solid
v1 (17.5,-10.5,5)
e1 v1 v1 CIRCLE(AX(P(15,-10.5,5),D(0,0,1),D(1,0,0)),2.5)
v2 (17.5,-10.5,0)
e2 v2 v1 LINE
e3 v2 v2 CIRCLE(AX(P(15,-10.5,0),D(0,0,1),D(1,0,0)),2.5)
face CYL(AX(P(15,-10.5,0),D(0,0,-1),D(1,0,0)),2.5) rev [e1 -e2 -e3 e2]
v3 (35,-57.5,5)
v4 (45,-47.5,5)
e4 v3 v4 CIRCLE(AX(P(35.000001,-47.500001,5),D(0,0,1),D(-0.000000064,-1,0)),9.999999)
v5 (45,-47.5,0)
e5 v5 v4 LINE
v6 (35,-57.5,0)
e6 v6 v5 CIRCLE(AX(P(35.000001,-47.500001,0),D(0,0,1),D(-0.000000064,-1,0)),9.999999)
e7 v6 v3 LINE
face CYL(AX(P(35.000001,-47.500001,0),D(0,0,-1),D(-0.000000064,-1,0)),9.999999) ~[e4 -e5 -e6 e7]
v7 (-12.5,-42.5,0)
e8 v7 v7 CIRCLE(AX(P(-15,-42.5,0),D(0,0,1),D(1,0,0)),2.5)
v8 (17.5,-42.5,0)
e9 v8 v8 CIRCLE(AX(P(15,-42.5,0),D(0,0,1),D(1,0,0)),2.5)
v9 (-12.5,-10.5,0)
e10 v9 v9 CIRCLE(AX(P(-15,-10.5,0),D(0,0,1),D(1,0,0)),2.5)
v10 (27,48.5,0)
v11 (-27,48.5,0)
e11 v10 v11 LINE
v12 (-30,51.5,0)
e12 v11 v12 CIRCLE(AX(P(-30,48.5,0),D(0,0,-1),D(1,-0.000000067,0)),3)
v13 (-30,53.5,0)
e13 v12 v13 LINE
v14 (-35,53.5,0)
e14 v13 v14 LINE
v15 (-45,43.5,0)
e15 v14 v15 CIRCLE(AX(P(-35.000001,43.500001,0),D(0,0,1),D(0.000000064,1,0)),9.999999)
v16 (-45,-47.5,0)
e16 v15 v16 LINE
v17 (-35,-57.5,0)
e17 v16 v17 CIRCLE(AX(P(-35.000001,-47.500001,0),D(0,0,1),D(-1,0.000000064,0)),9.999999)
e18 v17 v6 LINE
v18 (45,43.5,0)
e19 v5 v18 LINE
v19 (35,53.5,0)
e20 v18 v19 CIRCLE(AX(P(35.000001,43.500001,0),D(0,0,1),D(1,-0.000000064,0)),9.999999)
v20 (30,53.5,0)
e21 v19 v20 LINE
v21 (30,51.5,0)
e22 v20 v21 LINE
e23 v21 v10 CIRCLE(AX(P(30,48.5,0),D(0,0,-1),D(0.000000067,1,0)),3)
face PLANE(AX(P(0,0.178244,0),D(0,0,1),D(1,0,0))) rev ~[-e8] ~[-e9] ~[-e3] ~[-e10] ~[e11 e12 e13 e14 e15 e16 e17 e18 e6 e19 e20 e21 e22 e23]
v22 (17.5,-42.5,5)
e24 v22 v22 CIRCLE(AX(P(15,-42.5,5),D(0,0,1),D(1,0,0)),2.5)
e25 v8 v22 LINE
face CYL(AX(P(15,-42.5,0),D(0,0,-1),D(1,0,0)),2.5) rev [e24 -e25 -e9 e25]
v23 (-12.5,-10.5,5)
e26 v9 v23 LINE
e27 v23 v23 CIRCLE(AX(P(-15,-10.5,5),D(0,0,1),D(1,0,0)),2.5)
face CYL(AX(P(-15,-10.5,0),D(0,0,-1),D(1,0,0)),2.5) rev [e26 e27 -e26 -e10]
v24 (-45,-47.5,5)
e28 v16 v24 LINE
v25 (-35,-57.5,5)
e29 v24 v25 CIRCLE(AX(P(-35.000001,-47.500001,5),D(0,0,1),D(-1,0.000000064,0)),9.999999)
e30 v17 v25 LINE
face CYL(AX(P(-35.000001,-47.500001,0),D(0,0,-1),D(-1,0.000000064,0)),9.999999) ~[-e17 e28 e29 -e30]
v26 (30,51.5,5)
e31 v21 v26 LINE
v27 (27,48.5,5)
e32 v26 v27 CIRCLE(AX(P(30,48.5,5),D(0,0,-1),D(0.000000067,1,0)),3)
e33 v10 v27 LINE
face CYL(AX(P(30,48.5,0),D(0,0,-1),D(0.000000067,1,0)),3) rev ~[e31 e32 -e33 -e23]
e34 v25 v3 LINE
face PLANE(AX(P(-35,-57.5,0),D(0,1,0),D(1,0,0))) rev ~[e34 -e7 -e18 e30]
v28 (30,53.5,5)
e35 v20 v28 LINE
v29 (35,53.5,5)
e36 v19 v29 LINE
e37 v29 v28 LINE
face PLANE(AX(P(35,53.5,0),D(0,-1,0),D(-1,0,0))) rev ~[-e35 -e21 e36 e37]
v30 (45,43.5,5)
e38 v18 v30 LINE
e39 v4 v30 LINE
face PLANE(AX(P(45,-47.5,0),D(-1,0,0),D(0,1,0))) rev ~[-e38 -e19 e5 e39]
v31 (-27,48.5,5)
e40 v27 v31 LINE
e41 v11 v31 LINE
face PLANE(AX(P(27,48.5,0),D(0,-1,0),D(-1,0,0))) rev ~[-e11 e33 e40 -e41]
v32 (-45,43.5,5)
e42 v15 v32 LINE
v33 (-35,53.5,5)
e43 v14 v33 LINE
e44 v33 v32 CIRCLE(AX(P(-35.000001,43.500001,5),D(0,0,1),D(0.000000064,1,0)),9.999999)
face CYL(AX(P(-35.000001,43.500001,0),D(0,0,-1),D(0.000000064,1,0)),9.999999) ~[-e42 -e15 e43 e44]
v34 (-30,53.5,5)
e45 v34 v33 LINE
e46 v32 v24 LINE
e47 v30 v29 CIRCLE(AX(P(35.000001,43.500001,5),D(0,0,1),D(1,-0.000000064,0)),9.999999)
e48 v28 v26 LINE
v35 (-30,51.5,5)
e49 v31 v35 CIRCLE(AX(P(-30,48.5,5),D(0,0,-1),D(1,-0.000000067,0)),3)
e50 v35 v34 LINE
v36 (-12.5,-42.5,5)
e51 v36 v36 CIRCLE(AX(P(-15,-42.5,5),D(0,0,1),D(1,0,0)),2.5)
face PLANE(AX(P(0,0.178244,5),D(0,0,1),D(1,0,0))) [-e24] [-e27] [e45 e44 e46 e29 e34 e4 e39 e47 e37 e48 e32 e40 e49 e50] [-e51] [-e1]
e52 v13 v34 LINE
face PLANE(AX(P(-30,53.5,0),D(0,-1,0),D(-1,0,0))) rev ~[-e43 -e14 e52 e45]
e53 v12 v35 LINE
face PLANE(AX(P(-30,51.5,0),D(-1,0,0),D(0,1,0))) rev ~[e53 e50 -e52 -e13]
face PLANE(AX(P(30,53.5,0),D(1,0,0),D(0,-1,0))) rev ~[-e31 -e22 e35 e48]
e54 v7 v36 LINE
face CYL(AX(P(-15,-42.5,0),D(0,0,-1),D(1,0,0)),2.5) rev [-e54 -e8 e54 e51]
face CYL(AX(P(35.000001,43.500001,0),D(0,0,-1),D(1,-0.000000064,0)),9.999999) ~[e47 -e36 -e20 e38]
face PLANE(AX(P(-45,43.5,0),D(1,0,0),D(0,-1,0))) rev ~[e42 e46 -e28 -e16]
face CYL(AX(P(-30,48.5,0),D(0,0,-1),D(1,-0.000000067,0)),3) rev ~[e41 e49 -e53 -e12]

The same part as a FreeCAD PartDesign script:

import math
import FreeCAD as App
import Part
import Sketcher
from FreeCAD import Vector

doc = App.newDocument("Part")
body = doc.addObject("PartDesign::Body", "Body")

# Sketch on XY plane
sketch1 = body.newObject("Sketcher::SketchObject", "Sketch")
sketch1.AttachmentSupport = (doc.getObject("XY_Plane"), [""])
sketch1.MapMode = "FlatFace"
sketch1.addGeometry(Part.LineSegment(Vector(-35, -57.5, 0), Vector(35, -57.5, 0)), False)
sketch1.addGeometry(Part.ArcOfCircle(Part.Circle(Vector(35, -47.5, 0), Vector(0, 0, 1), 10), math.radians(-90), math.radians(0)), False)
sketch1.addGeometry(Part.LineSegment(Vector(45, -47.5, 0), Vector(45, 43.5, 0)), False)
sketch1.addGeometry(Part.ArcOfCircle(Part.Circle(Vector(35, 43.5, 0), Vector(0, 0, 1), 10), math.radians(0), math.radians(90)), False)
sketch1.addGeometry(Part.LineSegment(Vector(35, 53.5, 0), Vector(30, 53.5, 0)), False)
sketch1.addGeometry(Part.LineSegment(Vector(30, 53.5, 0), Vector(30, 51.5, 0)), False)
sketch1.addGeometry(Part.ArcOfCircle(Part.Circle(Vector(30, 48.5, 0), Vector(0, 0, 1), 3), math.radians(-180), math.radians(90)), False)
sketch1.addGeometry(Part.LineSegment(Vector(27, 48.5, 0), Vector(-27, 48.5, 0)), False)
sketch1.addGeometry(Part.ArcOfCircle(Part.Circle(Vector(-30, 48.5, 0), Vector(0, 0, 1), 3), math.radians(90), math.radians(360)), False)
sketch1.addGeometry(Part.LineSegment(Vector(-30, 51.5, 0), Vector(-30, 53.5, 0)), False)
sketch1.addGeometry(Part.LineSegment(Vector(-30, 53.5, 0), Vector(-35, 53.5, 0)), False)
sketch1.addGeometry(Part.ArcOfCircle(Part.Circle(Vector(-35, 43.5, 0), Vector(0, 0, 1), 10), math.radians(90), math.radians(180)), False)
sketch1.addGeometry(Part.LineSegment(Vector(-45, 43.5, 0), Vector(-45, -47.5, 0)), False)
sketch1.addGeometry(Part.ArcOfCircle(Part.Circle(Vector(-35, -47.5, 0), Vector(0, 0, 1), 10), math.radians(180), math.radians(270)), False)
sketch1.addGeometry(Part.Circle(Vector(-15, -42.5, 0), Vector(0, 0, 1), 2.5), False)
sketch1.addGeometry(Part.Circle(Vector(15, -42.5, 0), Vector(0, 0, 1), 2.5), False)
sketch1.addGeometry(Part.Circle(Vector(-15, -10.5, 0), Vector(0, 0, 1), 2.5), False)
sketch1.addGeometry(Part.Circle(Vector(15, -10.5, 0), Vector(0, 0, 1), 2.5), False)
sketch1.addConstraint(Sketcher.Constraint("Tangent", 0, 2, 1, 1))
sketch1.addConstraint(Sketcher.Constraint("Tangent", 1, 2, 2, 1))
sketch1.addConstraint(Sketcher.Constraint("Tangent", 2, 2, 3, 1))
sketch1.addConstraint(Sketcher.Constraint("Tangent", 3, 2, 4, 1))
sketch1.addConstraint(Sketcher.Constraint("Coincident", 4, 2, 5, 1))
sketch1.addConstraint(Sketcher.Constraint("Coincident", 5, 2, 6, 2))
sketch1.addConstraint(Sketcher.Constraint("Coincident", 6, 1, 7, 1))
sketch1.addConstraint(Sketcher.Constraint("Coincident", 7, 2, 8, 2))
sketch1.addConstraint(Sketcher.Constraint("Coincident", 8, 1, 9, 1))
sketch1.addConstraint(Sketcher.Constraint("Coincident", 9, 2, 10, 1))
sketch1.addConstraint(Sketcher.Constraint("Tangent", 10, 2, 11, 1))
sketch1.addConstraint(Sketcher.Constraint("Tangent", 11, 2, 12, 1))
sketch1.addConstraint(Sketcher.Constraint("Tangent", 12, 2, 13, 1))
sketch1.addConstraint(Sketcher.Constraint("Tangent", 13, 2, 0, 1))
sketch1.addConstraint(Sketcher.Constraint("Horizontal", 0))
sketch1.addConstraint(Sketcher.Constraint("Vertical", 2))
sketch1.addConstraint(Sketcher.Constraint("Horizontal", 4))
sketch1.addConstraint(Sketcher.Constraint("Vertical", 5))
sketch1.addConstraint(Sketcher.Constraint("Horizontal", 7))
sketch1.addConstraint(Sketcher.Constraint("Vertical", 9))
sketch1.addConstraint(Sketcher.Constraint("Horizontal", 10))
sketch1.addConstraint(Sketcher.Constraint("Vertical", 12))
sketch1.addConstraint(Sketcher.Constraint("Equal", 1, 3))
sketch1.addConstraint(Sketcher.Constraint("Equal", 6, 8))
sketch1.addConstraint(Sketcher.Constraint("Equal", 3, 11))
sketch1.addConstraint(Sketcher.Constraint("Equal", 11, 13))
sketch1.addConstraint(Sketcher.Constraint("Equal", 14, 15))
sketch1.addConstraint(Sketcher.Constraint("Equal", 15, 16))
sketch1.addConstraint(Sketcher.Constraint("Equal", 16, 17))
sketch1.addConstraint(Sketcher.Constraint("Symmetric", 6, 3, 8, 3, -2))
sketch1.addConstraint(Sketcher.Constraint("Symmetric", 3, 3, 11, 3, -2))
sketch1.addConstraint(Sketcher.Constraint("Symmetric", 14, 3, 15, 3, -2))
sketch1.addConstraint(Sketcher.Constraint("Symmetric", 16, 3, 17, 3, -2))
sketch1.addConstraint(Sketcher.Constraint("Horizontal", 8, 3, 6, 1))
sketch1.addConstraint(Sketcher.Constraint("Vertical", 14, 3, 16, 3))
sketch1.addConstraint(Sketcher.Constraint("Vertical", 6, 3, 4, 2))
sketch1.addConstraint(Sketcher.Constraint("Equal", 4, 10))
sketch1.addConstraint(Sketcher.Constraint("Diameter", 14, 5.0))
sketch1.addConstraint(Sketcher.Constraint("Radius", 1, 9.999999))
sketch1.addConstraint(Sketcher.Constraint("Radius", 6, 3.0))
sketch1.addConstraint(Sketcher.Constraint("DistanceX", 0, 1, 0, 2, 70.0))
sketch1.addConstraint(Sketcher.Constraint("DistanceX", 4, 2, 4, 1, 5.0))
sketch1.addConstraint(Sketcher.Constraint("DistanceY", 2, 1, 2, 2, 91.0))
sketch1.addConstraint(Sketcher.Constraint("DistanceY", 5, 2, 5, 1, 2.0))
sketch1.addConstraint(Sketcher.Constraint("DistanceX", 14, 3, -1, 1, 15.0))
sketch1.addConstraint(Sketcher.Constraint("DistanceY", 13, 3, 14, 3, 5.000001))
sketch1.addConstraint(Sketcher.Constraint("DistanceY", 14, 3, 16, 3, 32.0))
sketch1.addConstraint(Sketcher.Constraint("DistanceY", 1, 3, -1, 1, 47.500001))
pad1 = body.newObject("PartDesign::Pad", "Pad")
pad1.Profile = sketch1
pad1.Length = 5

doc.recompute()
